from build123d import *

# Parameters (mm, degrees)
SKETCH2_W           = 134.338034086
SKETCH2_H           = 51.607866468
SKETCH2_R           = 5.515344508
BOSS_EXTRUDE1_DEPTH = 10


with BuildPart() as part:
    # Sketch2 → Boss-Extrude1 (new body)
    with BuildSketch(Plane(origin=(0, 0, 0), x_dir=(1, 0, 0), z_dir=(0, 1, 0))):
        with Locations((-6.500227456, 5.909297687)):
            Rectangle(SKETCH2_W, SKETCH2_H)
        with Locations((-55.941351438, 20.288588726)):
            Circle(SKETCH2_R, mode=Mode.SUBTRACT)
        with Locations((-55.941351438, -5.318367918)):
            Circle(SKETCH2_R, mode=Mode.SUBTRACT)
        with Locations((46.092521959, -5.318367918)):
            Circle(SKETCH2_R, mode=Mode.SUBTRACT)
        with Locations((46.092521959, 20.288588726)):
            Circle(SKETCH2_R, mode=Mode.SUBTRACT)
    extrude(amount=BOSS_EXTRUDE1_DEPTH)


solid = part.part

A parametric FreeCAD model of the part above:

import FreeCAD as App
import Part
import Sketcher
from FreeCAD import Vector

doc = App.newDocument("Part")
body = doc.addObject("PartDesign::Body", "Body")

# Sketch on XZ plane
sketch1 = doc.addObject("Sketcher::SketchObject", "Sketch")
body.addObject(sketch1)
sketch1.AttachmentSupport = (doc.XZ_Plane, [""])
sketch1.MapMode = "FlatFace"
sketch1.addGeometry([
    Part.LineSegment(Vector(-73.669244, -31.713231, 0), Vector(-73.669244, 19.894636, 0)),  # 0
    Part.LineSegment(Vector(-73.669244, 19.894636, 0), Vector(60.66879, 19.894636, 0)),  # 1
    Part.LineSegment(Vector(60.66879, 19.894636, 0), Vector(60.66879, -31.713231, 0)),  # 2
    Part.LineSegment(Vector(60.66879, -31.713231, 0), Vector(-73.669244, -31.713231, 0)),  # 3
    Part.Circle(Vector(-55.941351, 5.318368, 0), Vector(0, 0, 1), 5.515345),  # 4
    Part.Circle(Vector(46.092522, 5.318368, 0), Vector(0, 0, 1), 5.515345),  # 5
    Part.Circle(Vector(-55.941351, -20.288589, 0), Vector(0, 0, 1), 5.515345),  # 6
    Part.Circle(Vector(46.092522, -20.288589, 0), Vector(0, 0, 1), 5.515345),  # 7
], False)
sketch1.addConstraint([
    Sketcher.Constraint("Coincident", 0, 2, 1, 1),
    Sketcher.Constraint("Coincident", 1, 2, 2, 1),
    Sketcher.Constraint("Coincident", 2, 2, 3, 1),
    Sketcher.Constraint("Coincident", 3, 2, 0, 1),
    Sketcher.Constraint("Vertical", 0),
    Sketcher.Constraint("Horizontal", 1),
    Sketcher.Constraint("Vertical", 2),
    Sketcher.Constraint("Horizontal", 3),
    Sketcher.Constraint("Equal", 4, 5),
    Sketcher.Constraint("Equal", 5, 6),
    Sketcher.Constraint("Equal", 6, 7),
    Sketcher.Constraint("Horizontal", 4, 3, 5, 3),
    Sketcher.Constraint("Horizontal", 6, 3, 7, 3),
    Sketcher.Constraint("Vertical", 4, 3, 6, 3),
    Sketcher.Constraint("Vertical", 5, 3, 7, 3),
    Sketcher.Constraint("Diameter", 4, 11.030689),
    Sketcher.Constraint("DistanceY", 2, 2, 5, 3, 37.031599),
    Sketcher.Constraint("DistanceX", 1, 1, 1, 2, 134.338034),
    Sketcher.Constraint("DistanceY", 0, 1, 0, 2, 51.607866),
    Sketcher.Constraint("DistanceX", 4, 3, -1, 1, 55.941351),
    Sketcher.Constraint("DistanceX", -1, 1, 5, 3, 46.092522),
    Sketcher.Constraint("DistanceY", 6, 3, -1, 1, 20.288589),
    Sketcher.Constraint("DistanceX", -1, 1, 1, 2, 60.66879),
    Sketcher.Constraint("DistanceY", 2, 2, -1, 1, 31.713231),
])
pad1 = doc.addObject("PartDesign::Pad", "Pad")
body.addObject(pad1)
pad1.Profile = sketch1
pad1.Length = 10
pad1.Reversed = True

doc.recompute()
